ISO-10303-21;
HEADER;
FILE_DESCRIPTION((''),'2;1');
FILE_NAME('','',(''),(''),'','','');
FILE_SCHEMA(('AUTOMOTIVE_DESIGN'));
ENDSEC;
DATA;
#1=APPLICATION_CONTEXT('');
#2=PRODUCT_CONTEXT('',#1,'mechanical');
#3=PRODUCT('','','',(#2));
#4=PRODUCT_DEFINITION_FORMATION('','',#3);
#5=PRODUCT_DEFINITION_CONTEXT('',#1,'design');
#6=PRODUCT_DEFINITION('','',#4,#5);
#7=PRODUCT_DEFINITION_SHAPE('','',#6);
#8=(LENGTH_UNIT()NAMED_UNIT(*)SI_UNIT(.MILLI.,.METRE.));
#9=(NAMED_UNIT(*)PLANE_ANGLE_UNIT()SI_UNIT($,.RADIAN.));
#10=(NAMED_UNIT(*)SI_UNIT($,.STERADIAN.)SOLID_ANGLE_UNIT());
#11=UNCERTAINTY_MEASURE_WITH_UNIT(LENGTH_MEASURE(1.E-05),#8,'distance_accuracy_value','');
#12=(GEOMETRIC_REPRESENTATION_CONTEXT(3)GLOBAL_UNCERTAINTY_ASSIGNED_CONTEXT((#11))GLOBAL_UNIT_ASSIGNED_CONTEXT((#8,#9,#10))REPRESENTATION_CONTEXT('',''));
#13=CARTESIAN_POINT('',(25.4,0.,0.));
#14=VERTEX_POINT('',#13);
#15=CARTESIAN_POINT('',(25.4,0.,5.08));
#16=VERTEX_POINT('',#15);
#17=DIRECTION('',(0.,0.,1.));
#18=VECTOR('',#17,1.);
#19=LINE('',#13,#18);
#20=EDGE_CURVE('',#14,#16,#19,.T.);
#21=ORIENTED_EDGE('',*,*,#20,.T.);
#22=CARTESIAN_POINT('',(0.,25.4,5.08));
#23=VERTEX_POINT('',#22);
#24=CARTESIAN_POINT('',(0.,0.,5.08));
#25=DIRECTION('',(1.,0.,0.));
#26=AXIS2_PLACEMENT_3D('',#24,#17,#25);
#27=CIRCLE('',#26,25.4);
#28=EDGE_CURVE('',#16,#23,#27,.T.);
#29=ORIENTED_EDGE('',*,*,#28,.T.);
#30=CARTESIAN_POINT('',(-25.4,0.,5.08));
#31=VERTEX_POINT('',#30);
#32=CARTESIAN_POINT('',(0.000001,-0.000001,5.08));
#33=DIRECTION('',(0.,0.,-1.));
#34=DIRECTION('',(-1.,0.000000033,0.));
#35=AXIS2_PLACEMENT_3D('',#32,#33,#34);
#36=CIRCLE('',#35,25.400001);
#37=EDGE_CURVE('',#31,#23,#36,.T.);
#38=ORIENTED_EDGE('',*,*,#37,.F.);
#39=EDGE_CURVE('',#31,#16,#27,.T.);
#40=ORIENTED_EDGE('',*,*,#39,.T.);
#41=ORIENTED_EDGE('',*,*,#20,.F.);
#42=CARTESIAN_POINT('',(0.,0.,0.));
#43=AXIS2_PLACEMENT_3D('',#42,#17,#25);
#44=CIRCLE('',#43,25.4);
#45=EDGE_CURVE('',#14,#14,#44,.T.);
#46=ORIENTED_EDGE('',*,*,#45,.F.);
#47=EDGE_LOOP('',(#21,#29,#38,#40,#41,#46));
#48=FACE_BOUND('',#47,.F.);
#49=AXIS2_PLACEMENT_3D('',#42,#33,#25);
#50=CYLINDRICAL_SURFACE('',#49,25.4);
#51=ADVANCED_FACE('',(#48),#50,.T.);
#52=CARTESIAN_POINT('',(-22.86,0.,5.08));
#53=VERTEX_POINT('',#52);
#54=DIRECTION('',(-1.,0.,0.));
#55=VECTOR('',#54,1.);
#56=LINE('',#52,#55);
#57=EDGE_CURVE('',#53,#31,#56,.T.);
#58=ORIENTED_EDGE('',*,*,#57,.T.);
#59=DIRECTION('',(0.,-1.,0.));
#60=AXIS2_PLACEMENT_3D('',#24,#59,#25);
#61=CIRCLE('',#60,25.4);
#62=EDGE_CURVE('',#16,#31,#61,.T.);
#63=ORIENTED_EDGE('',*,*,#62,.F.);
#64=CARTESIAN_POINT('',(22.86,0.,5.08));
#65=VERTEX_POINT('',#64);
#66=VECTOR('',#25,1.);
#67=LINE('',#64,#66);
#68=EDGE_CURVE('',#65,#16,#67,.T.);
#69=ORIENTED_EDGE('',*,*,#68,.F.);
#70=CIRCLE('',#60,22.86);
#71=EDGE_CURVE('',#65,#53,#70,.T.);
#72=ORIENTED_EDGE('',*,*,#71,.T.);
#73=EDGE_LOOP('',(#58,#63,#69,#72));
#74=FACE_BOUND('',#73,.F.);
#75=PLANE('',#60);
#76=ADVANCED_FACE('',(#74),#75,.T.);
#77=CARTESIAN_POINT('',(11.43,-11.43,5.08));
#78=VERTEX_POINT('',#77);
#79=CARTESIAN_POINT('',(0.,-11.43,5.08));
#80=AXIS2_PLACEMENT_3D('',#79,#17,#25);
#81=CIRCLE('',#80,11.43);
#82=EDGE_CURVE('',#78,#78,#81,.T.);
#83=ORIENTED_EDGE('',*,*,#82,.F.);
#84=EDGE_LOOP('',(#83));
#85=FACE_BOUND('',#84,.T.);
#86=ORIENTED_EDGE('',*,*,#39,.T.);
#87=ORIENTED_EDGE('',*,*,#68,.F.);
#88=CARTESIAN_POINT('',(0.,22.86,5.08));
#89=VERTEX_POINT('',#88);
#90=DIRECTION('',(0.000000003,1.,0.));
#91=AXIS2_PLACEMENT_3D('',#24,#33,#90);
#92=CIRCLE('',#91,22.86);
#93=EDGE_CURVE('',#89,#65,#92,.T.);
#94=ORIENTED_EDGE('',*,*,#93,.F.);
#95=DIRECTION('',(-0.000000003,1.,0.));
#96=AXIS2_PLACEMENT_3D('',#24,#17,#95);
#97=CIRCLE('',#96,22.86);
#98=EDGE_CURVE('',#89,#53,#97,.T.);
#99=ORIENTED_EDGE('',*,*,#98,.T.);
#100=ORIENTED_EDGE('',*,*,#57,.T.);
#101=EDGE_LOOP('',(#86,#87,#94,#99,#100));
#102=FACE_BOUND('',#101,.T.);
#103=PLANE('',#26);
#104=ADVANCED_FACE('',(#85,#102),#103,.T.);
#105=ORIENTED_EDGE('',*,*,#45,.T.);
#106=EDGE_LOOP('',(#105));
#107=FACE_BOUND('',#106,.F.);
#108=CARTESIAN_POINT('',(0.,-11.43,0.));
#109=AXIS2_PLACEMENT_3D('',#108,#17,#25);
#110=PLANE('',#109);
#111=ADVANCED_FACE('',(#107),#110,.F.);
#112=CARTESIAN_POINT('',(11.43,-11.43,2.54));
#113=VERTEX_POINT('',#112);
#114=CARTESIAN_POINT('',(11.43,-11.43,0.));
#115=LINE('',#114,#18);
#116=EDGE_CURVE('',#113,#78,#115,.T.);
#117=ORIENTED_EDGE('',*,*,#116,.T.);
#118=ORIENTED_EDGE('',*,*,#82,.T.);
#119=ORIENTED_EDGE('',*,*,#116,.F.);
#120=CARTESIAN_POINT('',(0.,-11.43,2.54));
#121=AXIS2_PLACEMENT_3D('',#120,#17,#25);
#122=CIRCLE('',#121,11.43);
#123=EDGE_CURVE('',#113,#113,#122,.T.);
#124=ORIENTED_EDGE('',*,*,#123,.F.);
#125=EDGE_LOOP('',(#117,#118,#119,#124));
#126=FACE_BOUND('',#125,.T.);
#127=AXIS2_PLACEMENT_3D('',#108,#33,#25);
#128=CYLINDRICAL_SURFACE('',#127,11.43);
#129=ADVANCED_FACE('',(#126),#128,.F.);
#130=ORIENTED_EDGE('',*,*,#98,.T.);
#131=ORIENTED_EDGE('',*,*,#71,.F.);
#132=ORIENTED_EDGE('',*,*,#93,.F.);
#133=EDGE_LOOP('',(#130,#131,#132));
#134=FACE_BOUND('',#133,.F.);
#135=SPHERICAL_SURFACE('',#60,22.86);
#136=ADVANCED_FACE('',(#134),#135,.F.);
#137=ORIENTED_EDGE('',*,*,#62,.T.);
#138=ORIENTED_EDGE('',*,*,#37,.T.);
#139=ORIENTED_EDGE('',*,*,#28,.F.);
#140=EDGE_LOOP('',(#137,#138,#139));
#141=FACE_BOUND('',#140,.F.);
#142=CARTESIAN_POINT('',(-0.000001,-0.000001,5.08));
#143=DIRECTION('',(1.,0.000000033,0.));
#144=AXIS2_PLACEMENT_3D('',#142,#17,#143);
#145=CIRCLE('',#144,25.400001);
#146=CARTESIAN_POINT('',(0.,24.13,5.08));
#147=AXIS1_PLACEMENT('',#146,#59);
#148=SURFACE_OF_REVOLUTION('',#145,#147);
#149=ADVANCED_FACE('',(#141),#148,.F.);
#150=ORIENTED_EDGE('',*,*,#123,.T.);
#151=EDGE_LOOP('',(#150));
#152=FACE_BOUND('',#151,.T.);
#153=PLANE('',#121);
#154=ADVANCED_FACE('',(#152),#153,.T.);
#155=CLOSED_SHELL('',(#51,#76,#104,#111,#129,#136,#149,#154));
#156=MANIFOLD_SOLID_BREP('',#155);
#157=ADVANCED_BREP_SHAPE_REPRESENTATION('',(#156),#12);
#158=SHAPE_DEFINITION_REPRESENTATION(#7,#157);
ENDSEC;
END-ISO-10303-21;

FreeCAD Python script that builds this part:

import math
import FreeCAD as App
import Part
import Sketcher

V = App.Vector
Q = App.Units.Quantity

doc = App.newDocument("Part")
params = doc.addObject("Spreadsheet::Sheet", "Params")
for row, (alias, value) in enumerate([
    ("sketch1_diameter", "2 in"),
    ("sketch1_diameter2", "0.9 in"),
    ("pad1_length", "0.2 in"),
    ("sketch2_diameter", "0.9 in"),
    ("pad2_length", "0.1 in"),
    ("sketch3_radius", "1 in"),
    ("sketch3_radius2", "0.9 in"),
    ("revolution_angle", "180 deg"),
], start=1):
    params.set(f"A{row}", alias)
    params.set(f"B{row}", "=" + value)
    params.setAlias(f"B{row}", alias)

body = doc.addObject("PartDesign::Body", "Body")

sketch1 = doc.addObject("Sketcher::SketchObject", "Sketch")
body.addObject(sketch1)
sketch1.AttachmentSupport = (doc.XY_Plane, [""])
sketch1.MapMode = "FlatFace"
sketch1.addGeometry(Part.Circle(V(0, 0, 0), V(0, 0, 1), 25), False)
sketch1.addGeometry(Part.Circle(V(0, -11, 0), V(0, 0, 1), 11), False)
sketch1.addConstraint(Sketcher.Constraint("Coincident", 0, 3, -1, 1))
sketch1.addConstraint(Sketcher.Constraint("PointOnObject", 1, 3, -2))
sketch1.addConstraint(Sketcher.Constraint("Diameter", 0, Q("2 in")))
sketch1.addConstraint(Sketcher.Constraint("Diameter", 1, Q("0.9 in")))
sketch1.addConstraint(Sketcher.Constraint("DistanceY", 1, 3, -1, 1, Q("0.45 in")))
sketch1.setExpression("Constraints[2]", "Params.sketch1_diameter")
sketch1.setExpression("Constraints[3]", "Params.sketch1_diameter2")
pad1 = doc.addObject("PartDesign::Pad", "Pad")
body.addObject(pad1)
pad1.Profile = sketch1
pad1.setExpression("Length", "Params.pad1_length")

sketch2 = doc.addObject("Sketcher::SketchObject", "Sketch001")
body.addObject(sketch2)
sketch2.AttachmentSupport = (doc.XY_Plane, [""])
sketch2.MapMode = "FlatFace"
sketch2.addGeometry(Part.Circle(V(0, -11, 0), V(0, 0, 1), 11), False)
sketch2.addConstraint(Sketcher.Constraint("PointOnObject", 0, 3, -2))
sketch2.addConstraint(Sketcher.Constraint("Diameter", 0, Q("0.9 in")))
sketch2.addConstraint(Sketcher.Constraint("DistanceY", 0, 3, -1, 1, Q("0.45 in")))
sketch2.setExpression("Constraints[1]", "Params.sketch2_diameter")
pad2 = doc.addObject("PartDesign::Pad", "Pad001")
body.addObject(pad2)
pad2.Profile = sketch2
pad2.setExpression("Length", "Params.pad2_length")

sketch3 = doc.addObject("Sketcher::SketchObject", "Sketch002")
body.addObject(sketch3)
sketch3.AttachmentSupport = (doc.XY_Plane, [""])
sketch3.MapMode = "FlatFace"
sketch3.AttachmentOffset = App.Placement(V(0, 0, 0.2 * 25.4), App.Rotation())
sketch3.addGeometry(Part.LineSegment(V(22.9, 0, 0), V(25.4, 0, 0)), False)
sketch3.addGeometry(Part.ArcOfCircle(Part.Circle(V(0, 0, 0), V(0, 0, 1), 25.4), math.radians(0), math.radians(90)), False)
sketch3.addGeometry(Part.LineSegment(V(0, 25.4, 0), V(0, 22.9, 0)), False)
sketch3.addGeometry(Part.ArcOfCircle(Part.Circle(V(0, 0, 0), V(0, 0, 1), 22.9), math.radians(0), math.radians(90)), False)
sketch3.addConstraint(Sketcher.Constraint("Coincident", 0, 2, 1, 1))
sketch3.addConstraint(Sketcher.Constraint("Coincident", 1, 2, 2, 1))
sketch3.addConstraint(Sketcher.Constraint("Coincident", 2, 2, 3, 2))
sketch3.addConstraint(Sketcher.Constraint("Coincident", 3, 1, 0, 1))
sketch3.addConstraint(Sketcher.Constraint("Horizontal", 0))
sketch3.addConstraint(Sketcher.Constraint("Vertical", 2))
sketch3.addConstraint(Sketcher.Constraint("Coincident", 1, 3, -1, 1))
sketch3.addConstraint(Sketcher.Constraint("Coincident", 3, 3, -1, 1))
sketch3.addConstraint(Sketcher.Constraint("PointOnObject", 0, 2, -1))
sketch3.addConstraint(Sketcher.Constraint("PointOnObject", 1, 2, -2))
sketch3.addConstraint(Sketcher.Constraint("Radius", 1, Q("1 in")))
sketch3.addConstraint(Sketcher.Constraint("Radius", 3, Q("0.9 in")))
sketch3.setExpression("Constraints[10]", "Params.sketch3_radius")
sketch3.setExpression("Constraints[11]", "Params.sketch3_radius2")
revolution = doc.addObject("PartDesign::Revolution", "Revolution")
body.addObject(revolution)
revolution.Profile = sketch3
revolution.ReferenceAxis = (sketch3, ["V_Axis"])
revolution.setExpression("Angle", "Params.revolution_angle")
revolution.Reversed = True

doc.recompute()
